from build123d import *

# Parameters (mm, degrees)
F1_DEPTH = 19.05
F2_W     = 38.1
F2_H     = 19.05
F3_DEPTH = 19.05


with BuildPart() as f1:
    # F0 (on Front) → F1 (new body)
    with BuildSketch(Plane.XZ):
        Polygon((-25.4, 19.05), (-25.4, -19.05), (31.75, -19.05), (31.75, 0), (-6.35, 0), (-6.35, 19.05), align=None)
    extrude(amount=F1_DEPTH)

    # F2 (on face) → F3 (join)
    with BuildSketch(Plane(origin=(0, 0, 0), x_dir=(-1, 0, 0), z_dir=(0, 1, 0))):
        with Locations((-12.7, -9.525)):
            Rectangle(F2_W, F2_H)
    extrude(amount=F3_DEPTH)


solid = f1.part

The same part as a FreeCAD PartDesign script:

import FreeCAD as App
import Part
import Sketcher

V = App.Vector
Q = App.Units.Quantity


def add_polygon(sketch, points):
    """Adds a closed chain of lines whose ends are joined by coincident constraints."""
    first, n = sketch.GeometryCount, len(points)
    for a, b in zip(points, points[1:] + points[:1]):
        sketch.addGeometry(Part.LineSegment(App.Vector(*a, 0), App.Vector(*b, 0)), False)
    for i in range(n):
        sketch.addConstraint(Sketcher.Constraint("Coincident", first + i, 2, first + (i + 1) % n, 1))

doc = App.newDocument("Part")
body = doc.addObject("PartDesign::Body", "Body")

sketch1 = body.newObject("Sketcher::SketchObject", "Sketch")
sketch1.AttachmentSupport = (doc.getObject("XZ_Plane"), [""])
sketch1.MapMode = "FlatFace"
add_polygon(sketch1, [(-25, 19), (-25, -19), (32, -19), (32, 0), (-6, 0), (-6, 19)])
sketch1.addConstraint(Sketcher.Constraint("Vertical", 0))
sketch1.addConstraint(Sketcher.Constraint("Horizontal", 1))
sketch1.addConstraint(Sketcher.Constraint("Vertical", 2))
sketch1.addConstraint(Sketcher.Constraint("Horizontal", 3))
sketch1.addConstraint(Sketcher.Constraint("Vertical", 4))
sketch1.addConstraint(Sketcher.Constraint("Horizontal", 5))
sketch1.addConstraint(Sketcher.Constraint("PointOnObject", 2, 2, -1))
sketch1.addConstraint(Sketcher.Constraint("Equal", 3, 0))
sketch1.addConstraint(Sketcher.Constraint("Equal", 5, 2))
sketch1.addConstraint(Sketcher.Constraint("Equal", 2, 4))
sketch1.addConstraint(Sketcher.Constraint("DistanceX", 3, 2, 3, 1, Q("1.5 in")))
sketch1.addConstraint(Sketcher.Constraint("DistanceX", 0, 2, -1, 1, Q("1 in")))
pad1 = body.newObject("PartDesign::Pad", "Pad")
pad1.Profile = sketch1
pad1.Length = Q("0.75 in")

sketch2 = body.newObject("Sketcher::SketchObject", "Sketch001")
sketch2.AttachmentSupport = (doc.getObject("XZ_Plane"), [""])
sketch2.MapMode = "FlatFace"
add_polygon(sketch2, [(32, 0), (32, -19), (-6, -19), (-6, 0)])
sketch2.addConstraint(Sketcher.Constraint("Vertical", 0))
sketch2.addConstraint(Sketcher.Constraint("Horizontal", 1))
sketch2.addConstraint(Sketcher.Constraint("Vertical", 2))
sketch2.addConstraint(Sketcher.Constraint("Horizontal", 3))
sketch2.addConstraint(Sketcher.Constraint("PointOnObject", 2, 2, -1))
sketch2.addConstraint(Sketcher.Constraint("DistanceX", 1, 2, 1, 1, Q("1.5 in")))
sketch2.addConstraint(Sketcher.Constraint("DistanceY", 0, 2, 0, 1, Q("0.75 in")))
sketch2.addConstraint(Sketcher.Constraint("DistanceX", -1, 1, 0, 2, Q("1.25 in")))
pad2 = body.newObject("PartDesign::Pad", "Pad001")
pad2.Profile = sketch2
pad2.Length = Q("0.75 in")
pad2.Reversed = True

doc.recompute()
